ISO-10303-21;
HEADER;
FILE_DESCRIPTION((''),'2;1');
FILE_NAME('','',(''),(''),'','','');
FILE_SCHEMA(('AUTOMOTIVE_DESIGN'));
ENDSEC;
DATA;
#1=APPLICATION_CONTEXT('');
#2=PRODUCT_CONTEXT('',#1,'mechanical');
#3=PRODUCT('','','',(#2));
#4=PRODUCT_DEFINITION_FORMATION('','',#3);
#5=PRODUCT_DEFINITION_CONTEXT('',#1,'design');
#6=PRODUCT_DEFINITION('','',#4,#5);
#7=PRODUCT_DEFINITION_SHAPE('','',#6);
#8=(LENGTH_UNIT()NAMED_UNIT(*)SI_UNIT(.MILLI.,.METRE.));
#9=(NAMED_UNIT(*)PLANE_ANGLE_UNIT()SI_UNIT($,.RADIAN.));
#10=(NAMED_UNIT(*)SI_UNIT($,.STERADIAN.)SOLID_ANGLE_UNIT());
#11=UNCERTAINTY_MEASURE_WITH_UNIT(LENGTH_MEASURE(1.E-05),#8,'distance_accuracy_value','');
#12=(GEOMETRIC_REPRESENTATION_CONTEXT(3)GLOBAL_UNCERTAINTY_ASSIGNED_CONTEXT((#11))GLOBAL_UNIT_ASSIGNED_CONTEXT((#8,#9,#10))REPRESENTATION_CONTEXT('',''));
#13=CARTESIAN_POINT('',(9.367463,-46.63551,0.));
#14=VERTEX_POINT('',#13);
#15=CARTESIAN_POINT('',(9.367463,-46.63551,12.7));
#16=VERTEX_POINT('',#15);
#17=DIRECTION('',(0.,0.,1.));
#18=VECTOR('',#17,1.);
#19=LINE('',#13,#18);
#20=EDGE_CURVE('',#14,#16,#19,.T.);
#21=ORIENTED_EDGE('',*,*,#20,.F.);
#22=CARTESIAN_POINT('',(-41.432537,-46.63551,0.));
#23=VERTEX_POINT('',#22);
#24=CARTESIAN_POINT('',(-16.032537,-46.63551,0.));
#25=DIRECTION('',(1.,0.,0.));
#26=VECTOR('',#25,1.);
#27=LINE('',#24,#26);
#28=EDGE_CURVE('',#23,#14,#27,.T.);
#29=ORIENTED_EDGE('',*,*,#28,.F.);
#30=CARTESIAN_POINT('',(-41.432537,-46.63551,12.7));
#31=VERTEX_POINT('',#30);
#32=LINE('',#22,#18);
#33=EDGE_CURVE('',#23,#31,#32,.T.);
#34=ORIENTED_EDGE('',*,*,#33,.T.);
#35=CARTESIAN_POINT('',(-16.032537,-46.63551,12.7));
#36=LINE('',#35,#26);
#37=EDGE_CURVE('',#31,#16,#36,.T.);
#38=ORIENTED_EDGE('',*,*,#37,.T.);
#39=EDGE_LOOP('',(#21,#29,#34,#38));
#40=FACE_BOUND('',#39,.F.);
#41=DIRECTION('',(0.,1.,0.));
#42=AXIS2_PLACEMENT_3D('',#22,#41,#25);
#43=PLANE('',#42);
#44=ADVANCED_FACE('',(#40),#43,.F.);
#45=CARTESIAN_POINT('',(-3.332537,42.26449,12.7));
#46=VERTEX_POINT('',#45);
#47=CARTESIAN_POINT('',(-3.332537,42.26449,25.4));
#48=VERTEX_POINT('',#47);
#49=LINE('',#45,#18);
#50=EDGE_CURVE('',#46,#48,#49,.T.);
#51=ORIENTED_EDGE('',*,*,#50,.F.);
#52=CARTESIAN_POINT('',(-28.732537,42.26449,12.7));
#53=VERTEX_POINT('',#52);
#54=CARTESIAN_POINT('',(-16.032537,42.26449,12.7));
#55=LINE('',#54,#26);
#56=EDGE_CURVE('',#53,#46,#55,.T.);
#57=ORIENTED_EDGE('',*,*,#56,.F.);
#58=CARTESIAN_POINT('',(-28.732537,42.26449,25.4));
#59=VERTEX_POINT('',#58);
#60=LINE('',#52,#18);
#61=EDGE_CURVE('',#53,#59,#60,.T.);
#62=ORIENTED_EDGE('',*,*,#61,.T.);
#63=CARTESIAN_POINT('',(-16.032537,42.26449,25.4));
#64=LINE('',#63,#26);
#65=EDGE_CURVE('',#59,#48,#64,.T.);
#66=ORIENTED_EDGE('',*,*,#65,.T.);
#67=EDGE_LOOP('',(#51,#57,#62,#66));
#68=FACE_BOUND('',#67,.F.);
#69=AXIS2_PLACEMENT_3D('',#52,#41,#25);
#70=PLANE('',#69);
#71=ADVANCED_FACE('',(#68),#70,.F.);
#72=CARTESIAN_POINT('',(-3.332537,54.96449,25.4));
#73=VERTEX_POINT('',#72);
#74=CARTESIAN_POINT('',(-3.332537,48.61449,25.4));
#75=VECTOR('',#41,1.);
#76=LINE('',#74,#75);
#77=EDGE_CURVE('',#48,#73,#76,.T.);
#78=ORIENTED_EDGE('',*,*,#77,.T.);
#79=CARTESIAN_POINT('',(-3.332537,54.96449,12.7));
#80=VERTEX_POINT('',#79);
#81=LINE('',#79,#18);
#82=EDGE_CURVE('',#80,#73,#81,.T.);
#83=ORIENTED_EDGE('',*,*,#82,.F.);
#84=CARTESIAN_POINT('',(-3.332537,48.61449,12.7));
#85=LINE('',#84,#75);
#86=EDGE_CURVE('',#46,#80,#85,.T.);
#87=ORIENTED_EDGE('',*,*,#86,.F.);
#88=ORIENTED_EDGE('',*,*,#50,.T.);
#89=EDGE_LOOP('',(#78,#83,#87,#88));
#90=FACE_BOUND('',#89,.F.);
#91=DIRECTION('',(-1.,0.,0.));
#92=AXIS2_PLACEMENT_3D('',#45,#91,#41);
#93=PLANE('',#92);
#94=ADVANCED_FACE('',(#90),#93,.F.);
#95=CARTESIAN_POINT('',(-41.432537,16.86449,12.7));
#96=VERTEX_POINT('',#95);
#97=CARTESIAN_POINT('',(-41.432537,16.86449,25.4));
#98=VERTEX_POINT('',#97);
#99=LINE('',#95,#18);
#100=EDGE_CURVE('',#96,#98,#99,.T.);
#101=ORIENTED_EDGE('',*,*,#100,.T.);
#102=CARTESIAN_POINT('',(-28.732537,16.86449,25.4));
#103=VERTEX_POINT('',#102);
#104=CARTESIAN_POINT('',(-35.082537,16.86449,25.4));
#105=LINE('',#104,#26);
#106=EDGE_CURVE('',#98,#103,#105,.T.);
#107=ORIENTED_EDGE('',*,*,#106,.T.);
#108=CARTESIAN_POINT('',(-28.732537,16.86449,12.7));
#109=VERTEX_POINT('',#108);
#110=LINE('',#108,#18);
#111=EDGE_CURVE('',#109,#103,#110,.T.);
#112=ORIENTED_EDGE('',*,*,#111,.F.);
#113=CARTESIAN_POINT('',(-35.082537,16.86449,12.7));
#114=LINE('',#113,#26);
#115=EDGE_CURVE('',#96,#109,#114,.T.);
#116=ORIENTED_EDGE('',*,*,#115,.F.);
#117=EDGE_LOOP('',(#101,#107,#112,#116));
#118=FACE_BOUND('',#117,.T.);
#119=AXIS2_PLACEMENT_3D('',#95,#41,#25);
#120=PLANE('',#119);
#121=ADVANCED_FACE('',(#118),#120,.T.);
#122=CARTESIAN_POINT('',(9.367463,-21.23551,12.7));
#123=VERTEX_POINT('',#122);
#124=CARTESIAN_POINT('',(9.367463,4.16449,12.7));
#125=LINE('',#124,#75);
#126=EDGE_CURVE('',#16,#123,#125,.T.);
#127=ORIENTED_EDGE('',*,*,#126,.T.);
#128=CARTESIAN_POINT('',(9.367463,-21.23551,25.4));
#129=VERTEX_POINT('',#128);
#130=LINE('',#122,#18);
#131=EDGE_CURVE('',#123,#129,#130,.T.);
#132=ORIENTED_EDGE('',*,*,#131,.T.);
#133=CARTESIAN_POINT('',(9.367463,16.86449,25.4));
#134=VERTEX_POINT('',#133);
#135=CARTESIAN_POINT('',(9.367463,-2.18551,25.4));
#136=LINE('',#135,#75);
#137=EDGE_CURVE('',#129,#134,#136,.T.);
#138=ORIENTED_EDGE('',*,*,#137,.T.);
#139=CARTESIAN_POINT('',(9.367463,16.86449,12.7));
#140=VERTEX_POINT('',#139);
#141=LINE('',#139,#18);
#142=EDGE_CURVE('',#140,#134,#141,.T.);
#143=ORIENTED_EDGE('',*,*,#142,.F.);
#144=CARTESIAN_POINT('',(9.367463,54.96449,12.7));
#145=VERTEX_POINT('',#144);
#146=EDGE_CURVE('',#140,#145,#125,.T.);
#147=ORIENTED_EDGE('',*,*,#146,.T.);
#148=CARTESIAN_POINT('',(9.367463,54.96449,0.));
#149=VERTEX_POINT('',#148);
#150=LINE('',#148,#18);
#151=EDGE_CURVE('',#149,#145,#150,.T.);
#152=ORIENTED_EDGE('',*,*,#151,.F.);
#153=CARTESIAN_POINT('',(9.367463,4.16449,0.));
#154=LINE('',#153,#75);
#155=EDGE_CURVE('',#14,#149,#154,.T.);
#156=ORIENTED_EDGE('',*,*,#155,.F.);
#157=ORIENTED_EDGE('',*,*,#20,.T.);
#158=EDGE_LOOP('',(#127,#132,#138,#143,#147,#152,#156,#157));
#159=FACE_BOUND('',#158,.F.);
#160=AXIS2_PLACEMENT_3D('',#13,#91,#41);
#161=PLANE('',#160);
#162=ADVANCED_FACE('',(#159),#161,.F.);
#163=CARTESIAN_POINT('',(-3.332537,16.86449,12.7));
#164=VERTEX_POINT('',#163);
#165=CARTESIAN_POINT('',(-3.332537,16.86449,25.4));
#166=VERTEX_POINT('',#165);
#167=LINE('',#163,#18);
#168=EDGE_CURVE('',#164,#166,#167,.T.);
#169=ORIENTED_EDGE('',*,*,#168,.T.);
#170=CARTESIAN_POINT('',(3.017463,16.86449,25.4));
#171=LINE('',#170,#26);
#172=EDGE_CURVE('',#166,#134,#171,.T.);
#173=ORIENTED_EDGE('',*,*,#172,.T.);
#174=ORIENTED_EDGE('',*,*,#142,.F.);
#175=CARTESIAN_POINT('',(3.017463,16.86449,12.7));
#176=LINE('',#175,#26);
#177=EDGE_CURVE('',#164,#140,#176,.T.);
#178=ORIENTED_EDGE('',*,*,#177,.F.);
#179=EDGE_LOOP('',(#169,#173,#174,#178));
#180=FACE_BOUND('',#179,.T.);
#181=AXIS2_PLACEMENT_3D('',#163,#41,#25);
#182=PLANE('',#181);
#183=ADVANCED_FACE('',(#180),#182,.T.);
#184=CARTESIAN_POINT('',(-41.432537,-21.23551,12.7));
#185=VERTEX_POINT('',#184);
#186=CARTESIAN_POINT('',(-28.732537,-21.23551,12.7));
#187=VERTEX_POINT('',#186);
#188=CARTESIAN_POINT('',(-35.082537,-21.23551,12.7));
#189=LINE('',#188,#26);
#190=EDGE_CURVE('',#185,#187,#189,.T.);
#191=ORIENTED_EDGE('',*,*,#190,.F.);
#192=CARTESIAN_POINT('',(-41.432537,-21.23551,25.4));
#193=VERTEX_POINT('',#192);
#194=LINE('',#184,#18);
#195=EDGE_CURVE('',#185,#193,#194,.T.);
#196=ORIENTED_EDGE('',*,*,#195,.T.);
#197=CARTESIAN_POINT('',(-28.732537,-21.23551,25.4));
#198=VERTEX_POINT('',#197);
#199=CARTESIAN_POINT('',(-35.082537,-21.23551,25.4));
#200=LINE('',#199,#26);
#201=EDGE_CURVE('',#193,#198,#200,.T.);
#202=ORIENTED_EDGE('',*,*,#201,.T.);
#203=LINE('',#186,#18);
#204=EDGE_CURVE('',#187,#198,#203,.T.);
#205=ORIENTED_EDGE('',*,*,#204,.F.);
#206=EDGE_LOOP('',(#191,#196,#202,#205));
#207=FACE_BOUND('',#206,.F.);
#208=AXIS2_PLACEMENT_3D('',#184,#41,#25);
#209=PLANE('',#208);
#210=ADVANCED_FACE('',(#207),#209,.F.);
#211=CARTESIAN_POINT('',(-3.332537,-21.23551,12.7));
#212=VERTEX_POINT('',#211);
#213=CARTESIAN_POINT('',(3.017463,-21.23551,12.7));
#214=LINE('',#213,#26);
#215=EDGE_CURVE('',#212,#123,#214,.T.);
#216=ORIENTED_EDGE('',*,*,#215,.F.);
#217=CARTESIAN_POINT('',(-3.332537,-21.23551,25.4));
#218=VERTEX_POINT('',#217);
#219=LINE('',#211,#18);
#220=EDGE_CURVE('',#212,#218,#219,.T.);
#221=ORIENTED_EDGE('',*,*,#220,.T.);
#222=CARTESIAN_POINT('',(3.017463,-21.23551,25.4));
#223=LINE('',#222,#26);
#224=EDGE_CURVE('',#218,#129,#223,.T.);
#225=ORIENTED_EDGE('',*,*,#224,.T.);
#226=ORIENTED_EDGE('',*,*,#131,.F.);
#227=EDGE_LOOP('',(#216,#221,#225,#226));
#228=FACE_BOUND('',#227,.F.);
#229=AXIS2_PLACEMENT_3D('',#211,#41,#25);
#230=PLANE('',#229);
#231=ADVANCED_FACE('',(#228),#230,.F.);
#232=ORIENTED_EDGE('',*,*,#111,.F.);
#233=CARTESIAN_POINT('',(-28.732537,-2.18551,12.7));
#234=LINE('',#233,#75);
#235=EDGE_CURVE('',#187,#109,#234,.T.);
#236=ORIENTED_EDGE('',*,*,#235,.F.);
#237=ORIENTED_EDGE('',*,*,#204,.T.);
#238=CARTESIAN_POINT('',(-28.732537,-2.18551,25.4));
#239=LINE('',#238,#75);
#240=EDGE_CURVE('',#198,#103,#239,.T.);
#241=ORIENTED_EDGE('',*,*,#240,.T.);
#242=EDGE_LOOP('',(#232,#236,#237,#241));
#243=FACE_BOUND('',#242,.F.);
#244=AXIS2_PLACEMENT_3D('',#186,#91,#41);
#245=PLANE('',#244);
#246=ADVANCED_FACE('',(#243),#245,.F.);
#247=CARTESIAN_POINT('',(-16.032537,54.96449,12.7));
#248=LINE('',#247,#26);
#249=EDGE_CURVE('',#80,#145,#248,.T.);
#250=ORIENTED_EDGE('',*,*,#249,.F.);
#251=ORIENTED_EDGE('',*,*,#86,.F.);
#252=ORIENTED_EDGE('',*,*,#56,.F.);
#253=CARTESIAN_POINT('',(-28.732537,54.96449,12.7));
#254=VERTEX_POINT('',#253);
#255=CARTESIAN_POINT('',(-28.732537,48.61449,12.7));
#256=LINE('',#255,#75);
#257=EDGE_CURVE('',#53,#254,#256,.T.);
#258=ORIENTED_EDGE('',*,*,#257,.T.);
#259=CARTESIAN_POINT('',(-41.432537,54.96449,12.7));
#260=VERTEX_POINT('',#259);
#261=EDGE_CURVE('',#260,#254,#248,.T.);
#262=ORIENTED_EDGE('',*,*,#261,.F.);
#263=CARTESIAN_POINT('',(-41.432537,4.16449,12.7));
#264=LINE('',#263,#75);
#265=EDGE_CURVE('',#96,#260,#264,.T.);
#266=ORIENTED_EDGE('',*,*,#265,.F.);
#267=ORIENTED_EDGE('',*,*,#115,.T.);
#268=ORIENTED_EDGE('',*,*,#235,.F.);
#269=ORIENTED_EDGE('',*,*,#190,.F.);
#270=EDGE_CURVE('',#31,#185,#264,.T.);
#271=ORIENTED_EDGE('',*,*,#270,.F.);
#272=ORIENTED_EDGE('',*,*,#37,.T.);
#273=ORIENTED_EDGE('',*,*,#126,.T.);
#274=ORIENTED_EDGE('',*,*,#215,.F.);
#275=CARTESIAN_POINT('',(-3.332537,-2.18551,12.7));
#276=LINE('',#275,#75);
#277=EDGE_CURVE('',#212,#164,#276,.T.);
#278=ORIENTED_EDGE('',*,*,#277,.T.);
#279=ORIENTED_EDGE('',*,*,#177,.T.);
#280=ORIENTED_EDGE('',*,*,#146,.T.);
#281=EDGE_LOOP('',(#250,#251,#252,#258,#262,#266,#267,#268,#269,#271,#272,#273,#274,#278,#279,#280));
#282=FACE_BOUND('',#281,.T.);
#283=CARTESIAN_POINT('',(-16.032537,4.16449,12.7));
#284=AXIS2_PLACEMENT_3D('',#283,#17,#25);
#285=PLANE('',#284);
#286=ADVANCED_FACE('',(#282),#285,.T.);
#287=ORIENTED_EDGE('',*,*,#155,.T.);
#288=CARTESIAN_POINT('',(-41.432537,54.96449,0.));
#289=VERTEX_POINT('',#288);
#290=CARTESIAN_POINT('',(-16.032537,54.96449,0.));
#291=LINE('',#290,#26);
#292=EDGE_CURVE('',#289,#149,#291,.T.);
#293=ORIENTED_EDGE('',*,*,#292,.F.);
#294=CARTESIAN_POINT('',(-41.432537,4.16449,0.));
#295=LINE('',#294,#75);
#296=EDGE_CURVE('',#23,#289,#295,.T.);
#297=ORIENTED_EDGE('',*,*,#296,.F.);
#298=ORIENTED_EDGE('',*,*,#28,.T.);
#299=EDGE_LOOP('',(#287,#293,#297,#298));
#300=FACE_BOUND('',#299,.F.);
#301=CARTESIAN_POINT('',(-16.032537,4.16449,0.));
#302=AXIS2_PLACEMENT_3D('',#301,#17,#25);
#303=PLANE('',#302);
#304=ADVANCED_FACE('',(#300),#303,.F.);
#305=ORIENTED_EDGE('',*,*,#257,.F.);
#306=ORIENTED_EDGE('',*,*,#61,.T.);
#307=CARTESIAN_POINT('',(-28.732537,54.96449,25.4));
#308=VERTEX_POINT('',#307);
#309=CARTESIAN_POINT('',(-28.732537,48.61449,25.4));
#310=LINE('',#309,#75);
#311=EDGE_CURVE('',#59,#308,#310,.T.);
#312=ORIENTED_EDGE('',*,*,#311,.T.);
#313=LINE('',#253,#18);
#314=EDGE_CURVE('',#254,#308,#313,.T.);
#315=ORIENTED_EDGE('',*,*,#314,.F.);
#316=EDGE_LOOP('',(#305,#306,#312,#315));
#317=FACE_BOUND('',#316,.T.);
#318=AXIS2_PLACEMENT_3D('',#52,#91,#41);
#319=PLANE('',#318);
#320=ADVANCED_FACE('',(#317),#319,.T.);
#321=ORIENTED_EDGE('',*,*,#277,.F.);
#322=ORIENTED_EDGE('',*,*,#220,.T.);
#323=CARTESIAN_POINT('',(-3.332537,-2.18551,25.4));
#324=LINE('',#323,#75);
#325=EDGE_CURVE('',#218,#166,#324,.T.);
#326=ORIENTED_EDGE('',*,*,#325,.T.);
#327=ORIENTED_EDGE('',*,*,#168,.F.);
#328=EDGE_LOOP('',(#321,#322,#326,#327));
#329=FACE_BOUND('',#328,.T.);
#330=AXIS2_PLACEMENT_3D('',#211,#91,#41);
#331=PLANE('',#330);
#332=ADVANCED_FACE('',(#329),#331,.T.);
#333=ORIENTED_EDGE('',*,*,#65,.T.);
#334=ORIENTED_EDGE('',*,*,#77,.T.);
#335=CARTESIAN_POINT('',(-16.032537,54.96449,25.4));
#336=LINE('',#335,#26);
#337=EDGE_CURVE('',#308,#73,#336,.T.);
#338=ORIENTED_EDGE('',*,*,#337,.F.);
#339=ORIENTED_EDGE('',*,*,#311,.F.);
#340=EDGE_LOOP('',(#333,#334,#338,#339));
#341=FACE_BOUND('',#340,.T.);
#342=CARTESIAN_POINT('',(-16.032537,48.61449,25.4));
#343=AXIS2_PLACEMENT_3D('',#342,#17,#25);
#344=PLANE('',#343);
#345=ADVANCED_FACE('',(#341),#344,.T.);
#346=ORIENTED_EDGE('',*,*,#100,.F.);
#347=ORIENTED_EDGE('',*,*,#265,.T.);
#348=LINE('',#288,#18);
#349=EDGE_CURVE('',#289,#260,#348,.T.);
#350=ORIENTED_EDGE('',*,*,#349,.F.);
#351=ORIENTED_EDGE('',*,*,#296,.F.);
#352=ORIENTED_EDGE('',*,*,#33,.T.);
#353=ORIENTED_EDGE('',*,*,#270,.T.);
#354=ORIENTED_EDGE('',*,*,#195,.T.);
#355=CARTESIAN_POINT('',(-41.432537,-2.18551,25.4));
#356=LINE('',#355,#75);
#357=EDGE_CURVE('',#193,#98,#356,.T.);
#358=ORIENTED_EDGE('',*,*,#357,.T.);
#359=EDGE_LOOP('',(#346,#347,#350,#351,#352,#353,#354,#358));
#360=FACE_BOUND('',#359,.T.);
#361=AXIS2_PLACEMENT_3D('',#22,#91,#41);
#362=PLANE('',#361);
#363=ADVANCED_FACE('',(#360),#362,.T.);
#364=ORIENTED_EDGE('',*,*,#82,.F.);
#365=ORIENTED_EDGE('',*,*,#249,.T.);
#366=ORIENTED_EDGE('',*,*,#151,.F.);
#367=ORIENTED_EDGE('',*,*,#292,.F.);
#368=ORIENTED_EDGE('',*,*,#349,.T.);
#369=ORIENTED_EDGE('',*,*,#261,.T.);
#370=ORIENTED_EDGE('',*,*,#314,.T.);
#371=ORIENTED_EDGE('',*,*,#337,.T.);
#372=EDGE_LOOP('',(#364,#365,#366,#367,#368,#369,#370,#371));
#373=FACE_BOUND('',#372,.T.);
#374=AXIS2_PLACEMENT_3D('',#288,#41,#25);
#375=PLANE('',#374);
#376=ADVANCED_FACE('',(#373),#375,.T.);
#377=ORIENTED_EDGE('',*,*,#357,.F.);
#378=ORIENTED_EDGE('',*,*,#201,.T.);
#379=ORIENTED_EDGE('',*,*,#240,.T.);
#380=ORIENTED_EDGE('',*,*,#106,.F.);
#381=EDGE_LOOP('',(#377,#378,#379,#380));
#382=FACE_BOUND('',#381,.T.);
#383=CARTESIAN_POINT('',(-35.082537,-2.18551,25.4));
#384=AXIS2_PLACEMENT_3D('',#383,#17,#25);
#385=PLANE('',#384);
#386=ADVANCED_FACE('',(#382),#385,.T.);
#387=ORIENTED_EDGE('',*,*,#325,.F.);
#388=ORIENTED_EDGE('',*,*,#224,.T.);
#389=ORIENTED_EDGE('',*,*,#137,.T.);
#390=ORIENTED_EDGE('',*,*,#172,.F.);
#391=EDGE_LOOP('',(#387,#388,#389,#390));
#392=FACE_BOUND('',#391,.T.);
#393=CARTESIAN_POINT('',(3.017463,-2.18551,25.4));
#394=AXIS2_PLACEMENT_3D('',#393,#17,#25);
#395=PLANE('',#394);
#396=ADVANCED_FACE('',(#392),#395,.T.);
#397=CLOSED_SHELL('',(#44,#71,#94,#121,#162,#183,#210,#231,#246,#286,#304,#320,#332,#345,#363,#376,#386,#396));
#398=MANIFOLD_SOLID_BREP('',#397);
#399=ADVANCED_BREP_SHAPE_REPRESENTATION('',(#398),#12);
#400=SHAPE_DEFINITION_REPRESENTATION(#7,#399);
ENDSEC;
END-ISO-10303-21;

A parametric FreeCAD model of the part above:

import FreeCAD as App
import Part
import Sketcher

V = App.Vector
Q = App.Units.Quantity

doc = App.newDocument("Part")
body = doc.addObject("PartDesign::Body", "Body")

# Sketch on XY plane
sketch1 = body.newObject("Sketcher::SketchObject", "Sketch")
sketch1.AttachmentSupport = (doc.getObject("XY_Plane"), [""])
sketch1.MapMode = "FlatFace"
sketch1.addGeometry([
    Part.LineSegment(V(-41, 55, 0), V(-41, -47, 0)),
    Part.LineSegment(V(-41, -47, 0), V(9, -47, 0)),
    Part.LineSegment(V(9, -47, 0), V(9, 55, 0)),
    Part.LineSegment(V(9, 55, 0), V(-41, 55, 0)),
], False)
sketch1.addConstraint([
    Sketcher.Constraint("Coincident", 0, 2, 1, 1),
    Sketcher.Constraint("Coincident", 1, 2, 2, 1),
    Sketcher.Constraint("Coincident", 2, 2, 3, 1),
    Sketcher.Constraint("Coincident", 3, 2, 0, 1),
    Sketcher.Constraint("Vertical", 0),
    Sketcher.Constraint("Horizontal", 1),
    Sketcher.Constraint("Vertical", 2),
    Sketcher.Constraint("Horizontal", 3),
    Sketcher.Constraint("DistanceX", 1, 1, 1, 2, Q("2 in")),
    Sketcher.Constraint("DistanceY", 0, 2, 0, 1, Q("4 in")),
    Sketcher.Constraint("DistanceY", 0, 2, -1, 1, Q("46.63551 mm")),
    Sketcher.Constraint("DistanceX", 0, 2, -1, 1, Q("41.432537 mm")),
])
pad1 = body.newObject("PartDesign::Pad", "Pad")
pad1.Profile = sketch1
pad1.Length = Q("0.5 in")

# Sketch on XY plane
sketch2 = body.newObject("Sketcher::SketchObject", "Sketch001")
sketch2.AttachmentSupport = (doc.getObject("XY_Plane"), [""])
sketch2.MapMode = "FlatFace"
sketch2.AttachmentOffset = App.Placement(V(0, 0, 0.5 * 25.4), App.Rotation())
sketch2.addGeometry([
    Part.LineSegment(V(-29, 55, 0), V(-29, 42, 0)),  # 0
    Part.LineSegment(V(-29, 42, 0), V(-3, 42, 0)),  # 1
    Part.LineSegment(V(-3, 42, 0), V(-3, 55, 0)),  # 2
    Part.LineSegment(V(-3, 55, 0), V(-29, 55, 0)),  # 3
    Part.LineSegment(V(-41, 17, 0), V(-41, -21, 0)),  # 4
    Part.LineSegment(V(-41, -21, 0), V(-29, -21, 0)),  # 5
    Part.LineSegment(V(-29, -21, 0), V(-29, 17, 0)),  # 6
    Part.LineSegment(V(-29, 17, 0), V(-41, 17, 0)),  # 7
    Part.LineSegment(V(-3, 17, 0), V(-3, -21, 0)),  # 8
    Part.LineSegment(V(-3, -21, 0), V(9, -21, 0)),  # 9
    Part.LineSegment(V(9, -21, 0), V(9, 17, 0)),  # 10
    Part.LineSegment(V(9, 17, 0), V(-3, 17, 0)),  # 11
], False)
sketch2.addConstraint([
    Sketcher.Constraint("Coincident", 0, 2, 1, 1),
    Sketcher.Constraint("Coincident", 1, 2, 2, 1),
    Sketcher.Constraint("Coincident", 2, 2, 3, 1),
    Sketcher.Constraint("Coincident", 3, 2, 0, 1),
    Sketcher.Constraint("Coincident", 4, 2, 5, 1),
    Sketcher.Constraint("Coincident", 5, 2, 6, 1),
    Sketcher.Constraint("Coincident", 6, 2, 7, 1),
    Sketcher.Constraint("Coincident", 7, 2, 4, 1),
    Sketcher.Constraint("Coincident", 8, 2, 9, 1),
    Sketcher.Constraint("Coincident", 9, 2, 10, 1),
    Sketcher.Constraint("Coincident", 10, 2, 11, 1),
    Sketcher.Constraint("Coincident", 11, 2, 8, 1),
    Sketcher.Constraint("Vertical", 0),
    Sketcher.Constraint("Horizontal", 1),
    Sketcher.Constraint("Vertical", 2),
    Sketcher.Constraint("Horizontal", 3),
    Sketcher.Constraint("Vertical", 4),
    Sketcher.Constraint("Horizontal", 5),
    Sketcher.Constraint("Vertical", 6),
    Sketcher.Constraint("Horizontal", 7),
    Sketcher.Constraint("Vertical", 8),
    Sketcher.Constraint("Horizontal", 9),
    Sketcher.Constraint("Vertical", 10),
    Sketcher.Constraint("Horizontal", 11),
    Sketcher.Constraint("Horizontal", 5, 2, 8, 2),
    Sketcher.Constraint("Horizontal", 7, 2, 10, 2),
    Sketcher.Constraint("Vertical", 3, 2, 5, 2),
    Sketcher.Constraint("Vertical", 2, 2, 8, 2),
    Sketcher.Constraint("Equal", 7, 9),
    Sketcher.Constraint("Equal", 11, 0),
    Sketcher.Constraint("DistanceX", 1, 1, 1, 2, Q("1 in")),
    Sketcher.Constraint("DistanceX", 5, 1, 5, 2, Q("0.5 in")),
    Sketcher.Constraint("DistanceY", 4, 2, 4, 1, Q("1.5 in")),
    Sketcher.Constraint("DistanceY", 4, 2, 3, 2, Q("3 in")),
    Sketcher.Constraint("DistanceY", -1, 1, 0, 2, Q("42.26449 mm")),
    Sketcher.Constraint("DistanceX", 0, 2, -1, 1, Q("28.732537 mm")),
])
pad2 = body.newObject("PartDesign::Pad", "Pad001")
pad2.Profile = sketch2
pad2.Length = Q("0.5 in")

doc.recompute()
